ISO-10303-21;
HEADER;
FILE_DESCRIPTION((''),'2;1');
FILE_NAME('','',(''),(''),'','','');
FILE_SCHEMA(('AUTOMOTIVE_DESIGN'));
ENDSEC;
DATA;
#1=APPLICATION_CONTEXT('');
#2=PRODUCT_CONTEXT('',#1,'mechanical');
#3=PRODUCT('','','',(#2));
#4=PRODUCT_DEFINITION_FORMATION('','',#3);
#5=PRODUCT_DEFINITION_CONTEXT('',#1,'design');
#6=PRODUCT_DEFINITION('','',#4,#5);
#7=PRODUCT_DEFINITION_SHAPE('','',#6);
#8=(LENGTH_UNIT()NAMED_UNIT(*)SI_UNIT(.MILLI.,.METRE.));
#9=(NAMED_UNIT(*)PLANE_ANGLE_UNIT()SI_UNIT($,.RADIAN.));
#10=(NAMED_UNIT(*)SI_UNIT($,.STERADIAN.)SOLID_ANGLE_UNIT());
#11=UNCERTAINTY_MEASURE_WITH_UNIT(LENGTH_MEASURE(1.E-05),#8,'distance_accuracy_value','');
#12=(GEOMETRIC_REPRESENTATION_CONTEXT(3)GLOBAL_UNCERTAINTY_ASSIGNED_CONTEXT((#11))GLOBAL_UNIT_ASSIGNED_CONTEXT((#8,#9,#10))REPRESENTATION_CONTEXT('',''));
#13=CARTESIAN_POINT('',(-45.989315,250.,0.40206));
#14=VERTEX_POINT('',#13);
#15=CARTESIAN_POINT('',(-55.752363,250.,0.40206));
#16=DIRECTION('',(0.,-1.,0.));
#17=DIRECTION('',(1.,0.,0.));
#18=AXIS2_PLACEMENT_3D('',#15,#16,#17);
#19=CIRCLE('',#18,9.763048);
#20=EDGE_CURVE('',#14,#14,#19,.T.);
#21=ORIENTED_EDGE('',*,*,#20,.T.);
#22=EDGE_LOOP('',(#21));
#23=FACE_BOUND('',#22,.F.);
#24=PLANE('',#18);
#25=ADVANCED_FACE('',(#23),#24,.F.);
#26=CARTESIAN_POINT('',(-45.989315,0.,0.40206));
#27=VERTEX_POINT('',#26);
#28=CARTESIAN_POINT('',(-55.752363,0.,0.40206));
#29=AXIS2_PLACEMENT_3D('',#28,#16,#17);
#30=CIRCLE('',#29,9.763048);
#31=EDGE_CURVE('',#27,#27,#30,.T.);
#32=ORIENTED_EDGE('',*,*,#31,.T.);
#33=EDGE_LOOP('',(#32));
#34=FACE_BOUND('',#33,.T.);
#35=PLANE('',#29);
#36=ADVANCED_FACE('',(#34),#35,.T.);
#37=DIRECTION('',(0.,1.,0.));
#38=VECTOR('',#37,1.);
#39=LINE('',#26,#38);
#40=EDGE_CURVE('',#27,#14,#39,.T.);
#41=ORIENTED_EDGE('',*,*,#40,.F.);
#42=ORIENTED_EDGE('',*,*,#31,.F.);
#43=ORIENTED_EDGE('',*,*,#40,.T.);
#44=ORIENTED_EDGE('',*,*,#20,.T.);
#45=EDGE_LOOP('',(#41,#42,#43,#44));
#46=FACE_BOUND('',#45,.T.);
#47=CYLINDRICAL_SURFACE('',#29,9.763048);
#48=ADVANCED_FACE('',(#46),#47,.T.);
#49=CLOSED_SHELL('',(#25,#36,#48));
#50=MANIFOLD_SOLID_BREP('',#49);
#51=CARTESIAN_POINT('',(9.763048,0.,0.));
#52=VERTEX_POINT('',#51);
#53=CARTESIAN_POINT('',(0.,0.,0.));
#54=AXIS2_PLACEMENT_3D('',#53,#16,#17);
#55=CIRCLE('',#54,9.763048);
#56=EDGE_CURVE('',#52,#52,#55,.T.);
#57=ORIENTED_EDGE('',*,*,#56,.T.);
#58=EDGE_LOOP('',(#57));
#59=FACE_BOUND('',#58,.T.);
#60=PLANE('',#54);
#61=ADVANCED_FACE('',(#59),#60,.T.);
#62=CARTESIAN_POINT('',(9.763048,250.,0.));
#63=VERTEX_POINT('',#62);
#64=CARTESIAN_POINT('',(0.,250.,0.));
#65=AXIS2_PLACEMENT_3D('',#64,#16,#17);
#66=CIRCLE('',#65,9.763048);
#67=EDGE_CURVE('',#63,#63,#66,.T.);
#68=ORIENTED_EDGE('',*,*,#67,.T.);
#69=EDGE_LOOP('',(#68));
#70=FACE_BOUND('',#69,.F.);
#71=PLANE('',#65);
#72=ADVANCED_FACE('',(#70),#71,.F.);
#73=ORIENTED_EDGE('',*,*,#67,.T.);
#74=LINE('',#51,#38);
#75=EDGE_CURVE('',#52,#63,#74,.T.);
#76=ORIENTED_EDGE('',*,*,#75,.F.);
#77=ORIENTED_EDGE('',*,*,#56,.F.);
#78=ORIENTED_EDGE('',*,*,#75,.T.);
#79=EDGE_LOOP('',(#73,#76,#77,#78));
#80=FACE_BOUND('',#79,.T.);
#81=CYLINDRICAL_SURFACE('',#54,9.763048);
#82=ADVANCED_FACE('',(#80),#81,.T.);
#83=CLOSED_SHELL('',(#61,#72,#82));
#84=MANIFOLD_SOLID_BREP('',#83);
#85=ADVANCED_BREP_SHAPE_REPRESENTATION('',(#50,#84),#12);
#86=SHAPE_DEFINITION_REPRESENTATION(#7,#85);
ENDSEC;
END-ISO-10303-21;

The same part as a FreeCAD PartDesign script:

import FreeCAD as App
import Part
import Sketcher
from FreeCAD import Vector
Q = App.Units.Quantity

doc = App.newDocument("Part")
body = doc.addObject("PartDesign::Body", "Body")
body.AllowCompound = True

# Sketch on XZ plane
sketch1 = body.newObject("Sketcher::SketchObject", "Sketch")
sketch1.AttachmentSupport = (doc.getObject("XZ_Plane"), [""])
sketch1.MapMode = "FlatFace"
sketch1.addGeometry(Part.Circle(Vector(0, 0, 0), Vector(0, 0, 1), 10), False)
sketch1.addGeometry(Part.Circle(Vector(-56, 0, 0), Vector(0, 0, 1), 10), False)
sketch1.addConstraint(Sketcher.Constraint("Coincident", 0, 3, -1, 1))
sketch1.addConstraint(Sketcher.Constraint("Equal", 0, 1))
sketch1.addConstraint(Sketcher.Constraint("Diameter", 0, Q("19.526096 mm")))
sketch1.addConstraint(Sketcher.Constraint("DistanceY", -1, 1, 1, 3, Q("0.40206 mm")))
sketch1.addConstraint(Sketcher.Constraint("DistanceX", 1, 3, -1, 1, Q("55.752363 mm")))
pad1 = body.newObject("PartDesign::Pad", "Pad")
pad1.Profile = sketch1
pad1.Length = 250
pad1.Reversed = True

doc.recompute()
